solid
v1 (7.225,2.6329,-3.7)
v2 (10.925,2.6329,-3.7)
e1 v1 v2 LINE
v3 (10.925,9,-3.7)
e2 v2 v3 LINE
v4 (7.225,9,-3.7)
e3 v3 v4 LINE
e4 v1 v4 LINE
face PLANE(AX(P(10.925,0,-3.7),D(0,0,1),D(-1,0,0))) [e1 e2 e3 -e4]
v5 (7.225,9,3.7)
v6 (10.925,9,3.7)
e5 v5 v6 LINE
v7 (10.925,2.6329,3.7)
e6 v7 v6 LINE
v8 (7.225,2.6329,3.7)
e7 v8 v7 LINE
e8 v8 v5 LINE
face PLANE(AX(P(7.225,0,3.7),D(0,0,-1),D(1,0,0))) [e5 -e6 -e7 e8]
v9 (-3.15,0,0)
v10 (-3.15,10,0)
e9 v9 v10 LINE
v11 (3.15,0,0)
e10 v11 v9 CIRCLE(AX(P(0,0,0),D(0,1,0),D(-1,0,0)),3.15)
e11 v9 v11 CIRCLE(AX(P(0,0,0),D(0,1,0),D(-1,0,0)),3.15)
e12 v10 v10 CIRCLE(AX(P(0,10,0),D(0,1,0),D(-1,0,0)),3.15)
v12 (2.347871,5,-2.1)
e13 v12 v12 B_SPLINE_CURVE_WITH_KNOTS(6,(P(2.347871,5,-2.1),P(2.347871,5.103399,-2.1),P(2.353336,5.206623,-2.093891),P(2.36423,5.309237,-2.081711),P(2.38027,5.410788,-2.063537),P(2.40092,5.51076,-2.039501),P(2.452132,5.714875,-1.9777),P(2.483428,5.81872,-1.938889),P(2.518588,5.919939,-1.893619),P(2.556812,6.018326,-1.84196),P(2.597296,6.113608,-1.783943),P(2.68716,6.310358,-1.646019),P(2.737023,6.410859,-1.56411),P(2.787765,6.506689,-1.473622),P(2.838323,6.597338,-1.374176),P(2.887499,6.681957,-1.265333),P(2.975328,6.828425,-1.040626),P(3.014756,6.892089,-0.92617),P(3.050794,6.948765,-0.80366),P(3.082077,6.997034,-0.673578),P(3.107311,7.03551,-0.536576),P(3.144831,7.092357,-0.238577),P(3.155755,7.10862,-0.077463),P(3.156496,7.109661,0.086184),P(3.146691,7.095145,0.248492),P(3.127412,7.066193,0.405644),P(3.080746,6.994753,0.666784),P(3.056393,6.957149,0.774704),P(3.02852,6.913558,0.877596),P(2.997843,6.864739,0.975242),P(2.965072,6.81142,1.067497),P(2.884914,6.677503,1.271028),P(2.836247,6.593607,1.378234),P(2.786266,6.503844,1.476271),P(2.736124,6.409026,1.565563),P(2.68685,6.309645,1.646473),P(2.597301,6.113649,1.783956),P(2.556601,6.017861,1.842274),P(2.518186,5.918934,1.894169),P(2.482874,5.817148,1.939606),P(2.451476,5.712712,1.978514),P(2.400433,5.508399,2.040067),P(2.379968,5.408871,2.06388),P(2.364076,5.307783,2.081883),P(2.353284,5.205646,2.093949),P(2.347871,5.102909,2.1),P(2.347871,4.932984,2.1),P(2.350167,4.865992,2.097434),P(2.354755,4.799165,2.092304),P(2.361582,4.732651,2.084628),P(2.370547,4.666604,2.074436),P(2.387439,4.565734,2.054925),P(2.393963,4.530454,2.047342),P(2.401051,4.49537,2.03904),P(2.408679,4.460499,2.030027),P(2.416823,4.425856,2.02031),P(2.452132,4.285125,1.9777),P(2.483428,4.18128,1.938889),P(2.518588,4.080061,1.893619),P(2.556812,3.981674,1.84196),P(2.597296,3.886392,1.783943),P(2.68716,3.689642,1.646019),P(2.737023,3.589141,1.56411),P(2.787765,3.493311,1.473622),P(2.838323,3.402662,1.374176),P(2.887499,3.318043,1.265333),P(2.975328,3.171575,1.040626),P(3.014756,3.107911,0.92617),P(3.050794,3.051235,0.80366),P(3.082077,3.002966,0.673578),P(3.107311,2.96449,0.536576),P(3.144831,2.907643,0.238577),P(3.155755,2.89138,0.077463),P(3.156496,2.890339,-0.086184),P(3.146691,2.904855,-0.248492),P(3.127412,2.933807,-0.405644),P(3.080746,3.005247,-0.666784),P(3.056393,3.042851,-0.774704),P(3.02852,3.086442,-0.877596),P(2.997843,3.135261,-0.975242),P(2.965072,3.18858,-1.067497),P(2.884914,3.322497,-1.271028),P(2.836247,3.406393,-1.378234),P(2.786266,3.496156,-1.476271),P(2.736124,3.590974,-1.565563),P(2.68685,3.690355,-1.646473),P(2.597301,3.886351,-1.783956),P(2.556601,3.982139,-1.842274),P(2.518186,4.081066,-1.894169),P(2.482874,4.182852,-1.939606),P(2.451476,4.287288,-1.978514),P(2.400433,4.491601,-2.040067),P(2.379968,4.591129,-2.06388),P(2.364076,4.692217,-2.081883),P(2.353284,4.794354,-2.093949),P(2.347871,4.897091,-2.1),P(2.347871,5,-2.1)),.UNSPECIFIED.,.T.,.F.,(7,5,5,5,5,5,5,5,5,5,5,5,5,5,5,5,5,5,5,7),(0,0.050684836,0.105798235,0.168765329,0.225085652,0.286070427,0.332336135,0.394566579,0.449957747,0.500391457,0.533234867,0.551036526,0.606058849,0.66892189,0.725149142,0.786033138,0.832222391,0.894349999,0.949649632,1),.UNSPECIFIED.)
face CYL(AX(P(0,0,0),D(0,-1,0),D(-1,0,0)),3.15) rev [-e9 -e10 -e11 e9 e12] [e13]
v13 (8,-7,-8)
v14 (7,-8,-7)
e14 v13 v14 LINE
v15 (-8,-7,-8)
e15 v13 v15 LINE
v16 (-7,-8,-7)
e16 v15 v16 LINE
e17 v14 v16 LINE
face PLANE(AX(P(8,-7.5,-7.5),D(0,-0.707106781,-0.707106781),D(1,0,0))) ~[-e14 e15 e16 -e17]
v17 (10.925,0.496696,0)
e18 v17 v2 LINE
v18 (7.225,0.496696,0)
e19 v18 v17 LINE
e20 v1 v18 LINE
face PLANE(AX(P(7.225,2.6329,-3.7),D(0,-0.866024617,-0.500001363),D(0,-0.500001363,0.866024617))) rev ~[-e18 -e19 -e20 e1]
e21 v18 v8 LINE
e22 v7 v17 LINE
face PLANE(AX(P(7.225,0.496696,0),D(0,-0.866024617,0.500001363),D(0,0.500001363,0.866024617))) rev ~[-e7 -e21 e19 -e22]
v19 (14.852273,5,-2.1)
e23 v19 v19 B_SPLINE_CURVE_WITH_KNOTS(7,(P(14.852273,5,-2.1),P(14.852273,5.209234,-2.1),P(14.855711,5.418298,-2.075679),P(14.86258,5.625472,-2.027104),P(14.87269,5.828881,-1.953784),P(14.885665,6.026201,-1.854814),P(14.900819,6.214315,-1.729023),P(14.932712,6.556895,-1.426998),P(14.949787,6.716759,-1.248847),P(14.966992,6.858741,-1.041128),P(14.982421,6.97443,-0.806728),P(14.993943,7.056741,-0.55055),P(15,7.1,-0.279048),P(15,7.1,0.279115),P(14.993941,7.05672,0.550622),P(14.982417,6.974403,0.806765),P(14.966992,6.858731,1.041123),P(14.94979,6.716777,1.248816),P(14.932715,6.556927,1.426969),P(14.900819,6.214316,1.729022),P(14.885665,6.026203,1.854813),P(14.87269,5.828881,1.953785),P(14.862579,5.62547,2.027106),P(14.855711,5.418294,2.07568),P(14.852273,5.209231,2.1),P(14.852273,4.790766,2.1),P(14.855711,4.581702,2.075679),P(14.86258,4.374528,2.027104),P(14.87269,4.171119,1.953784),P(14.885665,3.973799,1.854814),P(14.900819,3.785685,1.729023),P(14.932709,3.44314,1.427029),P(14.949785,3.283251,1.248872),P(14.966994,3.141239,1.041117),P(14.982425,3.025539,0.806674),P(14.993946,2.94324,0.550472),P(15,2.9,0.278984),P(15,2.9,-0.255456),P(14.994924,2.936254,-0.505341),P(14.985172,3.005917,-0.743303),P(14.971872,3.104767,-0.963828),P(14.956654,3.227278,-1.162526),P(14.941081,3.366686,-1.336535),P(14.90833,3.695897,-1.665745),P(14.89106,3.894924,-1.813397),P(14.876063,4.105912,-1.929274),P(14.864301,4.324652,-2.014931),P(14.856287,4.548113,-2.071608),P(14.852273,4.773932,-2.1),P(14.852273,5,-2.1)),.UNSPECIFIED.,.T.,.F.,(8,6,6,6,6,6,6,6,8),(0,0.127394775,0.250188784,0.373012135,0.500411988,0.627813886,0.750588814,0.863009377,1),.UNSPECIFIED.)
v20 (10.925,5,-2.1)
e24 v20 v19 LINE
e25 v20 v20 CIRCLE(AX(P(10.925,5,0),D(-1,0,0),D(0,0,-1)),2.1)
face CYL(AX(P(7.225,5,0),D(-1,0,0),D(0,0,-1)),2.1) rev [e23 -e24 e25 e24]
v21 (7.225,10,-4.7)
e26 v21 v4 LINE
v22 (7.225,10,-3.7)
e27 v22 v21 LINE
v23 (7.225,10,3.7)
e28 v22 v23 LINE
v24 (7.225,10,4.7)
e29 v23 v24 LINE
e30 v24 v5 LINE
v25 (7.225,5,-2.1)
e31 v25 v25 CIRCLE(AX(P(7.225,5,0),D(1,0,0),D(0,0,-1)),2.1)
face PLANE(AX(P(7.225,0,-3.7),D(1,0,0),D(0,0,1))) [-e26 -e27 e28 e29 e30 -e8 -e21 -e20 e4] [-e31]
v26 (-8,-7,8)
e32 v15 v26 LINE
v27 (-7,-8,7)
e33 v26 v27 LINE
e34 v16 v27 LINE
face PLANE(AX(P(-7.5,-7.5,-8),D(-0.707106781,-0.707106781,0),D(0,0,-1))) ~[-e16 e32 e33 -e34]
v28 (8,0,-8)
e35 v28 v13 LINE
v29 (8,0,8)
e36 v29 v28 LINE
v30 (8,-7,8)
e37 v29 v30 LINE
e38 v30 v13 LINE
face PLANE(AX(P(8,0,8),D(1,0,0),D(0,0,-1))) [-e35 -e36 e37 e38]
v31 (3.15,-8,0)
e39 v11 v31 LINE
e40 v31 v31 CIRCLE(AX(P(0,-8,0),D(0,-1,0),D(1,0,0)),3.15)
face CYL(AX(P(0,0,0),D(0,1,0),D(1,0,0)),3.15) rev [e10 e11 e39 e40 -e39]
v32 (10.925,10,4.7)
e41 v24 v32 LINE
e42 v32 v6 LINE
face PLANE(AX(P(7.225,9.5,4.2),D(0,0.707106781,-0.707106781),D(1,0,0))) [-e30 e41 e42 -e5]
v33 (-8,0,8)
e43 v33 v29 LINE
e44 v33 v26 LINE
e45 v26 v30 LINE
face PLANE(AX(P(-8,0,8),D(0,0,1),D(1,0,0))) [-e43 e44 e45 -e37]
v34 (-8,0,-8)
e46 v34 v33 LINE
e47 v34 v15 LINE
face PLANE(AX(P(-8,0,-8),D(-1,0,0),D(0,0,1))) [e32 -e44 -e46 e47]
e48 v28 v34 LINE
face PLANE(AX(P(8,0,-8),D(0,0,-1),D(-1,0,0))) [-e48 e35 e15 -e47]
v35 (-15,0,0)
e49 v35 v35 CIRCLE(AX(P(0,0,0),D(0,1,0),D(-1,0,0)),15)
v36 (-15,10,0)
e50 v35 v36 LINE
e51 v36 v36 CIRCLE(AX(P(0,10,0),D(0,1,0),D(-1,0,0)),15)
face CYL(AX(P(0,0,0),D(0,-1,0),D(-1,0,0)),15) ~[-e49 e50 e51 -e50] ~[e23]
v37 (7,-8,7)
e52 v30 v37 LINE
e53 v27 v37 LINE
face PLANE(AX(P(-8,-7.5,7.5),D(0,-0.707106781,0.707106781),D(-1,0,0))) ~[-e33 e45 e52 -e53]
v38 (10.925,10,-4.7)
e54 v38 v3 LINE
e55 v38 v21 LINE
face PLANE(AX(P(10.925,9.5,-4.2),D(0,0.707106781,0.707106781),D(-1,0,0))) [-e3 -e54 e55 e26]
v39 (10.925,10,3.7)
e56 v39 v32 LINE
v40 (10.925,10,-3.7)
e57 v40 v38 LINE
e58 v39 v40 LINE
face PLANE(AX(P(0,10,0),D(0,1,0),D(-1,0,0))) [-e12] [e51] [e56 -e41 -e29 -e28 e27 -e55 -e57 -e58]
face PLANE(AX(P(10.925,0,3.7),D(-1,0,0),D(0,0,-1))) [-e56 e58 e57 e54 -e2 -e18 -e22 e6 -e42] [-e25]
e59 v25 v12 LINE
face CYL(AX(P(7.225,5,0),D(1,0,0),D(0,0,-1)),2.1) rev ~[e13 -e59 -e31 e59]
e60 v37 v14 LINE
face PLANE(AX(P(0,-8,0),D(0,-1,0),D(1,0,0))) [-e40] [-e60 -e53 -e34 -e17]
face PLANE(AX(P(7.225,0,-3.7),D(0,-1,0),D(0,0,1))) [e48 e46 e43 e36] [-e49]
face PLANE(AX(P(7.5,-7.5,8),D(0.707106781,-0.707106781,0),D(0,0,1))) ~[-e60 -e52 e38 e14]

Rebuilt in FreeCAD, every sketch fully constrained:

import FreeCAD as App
import Part
import Sketcher
Q = App.Units.Quantity


def edges_at(feature, points):
    """Names of the edges that pass closest to the given points."""
    edges = feature.Shape.Edges
    near = lambda p: min(range(len(edges)), key=lambda i: edges[i].distToShape(Part.Vertex(*p))[0])
    return sorted({f"Edge{near(p) + 1}" for p in points})


def add_polygon(sketch, points):
    """Adds a closed chain of lines whose ends are joined by coincident constraints."""
    first, n = sketch.GeometryCount, len(points)
    for a, b in zip(points, points[1:] + points[:1]):
        sketch.addGeometry(Part.LineSegment(App.Vector(*a, 0), App.Vector(*b, 0)), False)
    for i in range(n):
        sketch.addConstraint(Sketcher.Constraint("Coincident", first + i, 2, first + (i + 1) % n, 1))

doc = App.newDocument("Part")
body = doc.addObject("PartDesign::Body", "Body")

# Sketch on XZ plane
sketch1 = doc.addObject("Sketcher::SketchObject", "Sketch")
body.addObject(sketch1)
sketch1.AttachmentSupport = (doc.XZ_Plane, [""])
sketch1.MapMode = "FlatFace"
sketch1.addGeometry(Part.Circle(App.Vector(0, 0, 0), App.Vector(0, 0, 1), 15), False)  # 0
add_polygon(sketch1, [(10.9, 3.7), (7.2, 3.7), (7.2, -3.7), (10.9, -3.7)])  # lines 1-4
sketch1.addGeometry(Part.Circle(App.Vector(0, 0, 0), App.Vector(0, 0, 1), 3.1), False)  # 5
sketch1.addConstraint(Sketcher.Constraint("Horizontal", 1))
sketch1.addConstraint(Sketcher.Constraint("Vertical", 2))
sketch1.addConstraint(Sketcher.Constraint("Horizontal", 3))
sketch1.addConstraint(Sketcher.Constraint("Vertical", 4))
sketch1.addConstraint(Sketcher.Constraint("Coincident", 0, 3, -1, 1))
sketch1.addConstraint(Sketcher.Constraint("Coincident", 5, 3, -1, 1))
sketch1.addConstraint(Sketcher.Constraint("Diameter", 0, 30.0))
sketch1.addConstraint(Sketcher.Constraint("Diameter", 5, 6.3))
sketch1.addConstraint(Sketcher.Constraint("DistanceX", 1, 2, 1, 1, 3.7))
sketch1.addConstraint(Sketcher.Constraint("DistanceY", 2, 2, 2, 1, 7.4))
sketch1.addConstraint(Sketcher.Constraint("DistanceY", -1, 1, 1, 2, 3.7))
sketch1.addConstraint(Sketcher.Constraint("DistanceX", -1, 1, 1, 2, 7.225))
pad1 = doc.addObject("PartDesign::Pad", "Pad")
body.addObject(pad1)
pad1.Profile = sketch1
pad1.Length = 10
pad1.Reversed = True

# Sketch on YZ plane
sketch2 = doc.addObject("Sketcher::SketchObject", "Sketch001")
body.addObject(sketch2)
sketch2.AttachmentSupport = (doc.YZ_Plane, [""])
sketch2.MapMode = "FlatFace"
sketch2.AttachmentOffset = App.Placement(App.Vector(0, 0, 7.225), App.Rotation())
sketch2.addGeometry(Part.Circle(App.Vector(5, 0, 0), App.Vector(0, 0, 1), 2.1), False)
sketch2.addConstraint(Sketcher.Constraint("PointOnObject", 0, 3, -1))
sketch2.addConstraint(Sketcher.Constraint("Diameter", 0, 4.2))
sketch2.addConstraint(Sketcher.Constraint("DistanceX", -1, 1, 0, 3, 5.0))
pocket1 = doc.addObject("PartDesign::Pocket", "Pocket")
body.addObject(pocket1)
pocket1.Profile = sketch2
pocket1.Length = 16
pocket1.Midplane = True

# Sketch on YZ plane
sketch3 = doc.addObject("Sketcher::SketchObject", "Sketch002")
body.addObject(sketch3)
sketch3.AttachmentSupport = (doc.YZ_Plane, [""])
sketch3.MapMode = "FlatFace"
sketch3.AttachmentOffset = App.Placement(App.Vector(0, 0, 7.225), App.Rotation())
add_polygon(sketch3, [(0, -3.7), (2.6, -3.7), (0.5, 0), (2.6, 3.7), (0, 3.7)])  # lines 0-4
sketch3.addConstraint(Sketcher.Constraint("Horizontal", 0))
sketch3.addConstraint(Sketcher.Constraint("Horizontal", 3))
sketch3.addConstraint(Sketcher.Constraint("Vertical", 4))
sketch3.addConstraint(Sketcher.Constraint("Symmetric", 3, 2, 4, 2, -1, 1))
sketch3.addConstraint(Sketcher.Constraint("PointOnObject", 1, 2, -1))
sketch3.addConstraint(Sketcher.Constraint("Vertical", 0, 2, 2, 2))
sketch3.addConstraint(Sketcher.Constraint("Angle", 1, Q("120 deg")))
sketch3.addConstraint(Sketcher.Constraint("DistanceY", 4, 2, 4, 1, 7.4))
sketch3.addConstraint(Sketcher.Constraint("DistanceX", 0, 1, 0, 2, 2.633))
pad2 = doc.addObject("PartDesign::Pad", "Pad001")
body.addObject(pad2)
pad2.Profile = sketch3
pad2.Type = "UpToFirst"

# Sketch on XZ plane
sketch4 = doc.addObject("Sketcher::SketchObject", "Sketch003")
body.addObject(sketch4)
sketch4.AttachmentSupport = (doc.XZ_Plane, [""])
sketch4.MapMode = "FlatFace"
add_polygon(sketch4, [(8, 8), (-8, 8), (-8, -8), (8, -8)])  # lines 0-3
sketch4.addGeometry(Part.Circle(App.Vector(0, 0, 0), App.Vector(0, 0, 1), 3.1), False)  # 4
sketch4.addConstraint(Sketcher.Constraint("Horizontal", 0))
sketch4.addConstraint(Sketcher.Constraint("Vertical", 1))
sketch4.addConstraint(Sketcher.Constraint("Horizontal", 2))
sketch4.addConstraint(Sketcher.Constraint("Vertical", 3))
sketch4.addConstraint(Sketcher.Constraint("Coincident", 4, 3, -1, 1))
sketch4.addConstraint(Sketcher.Constraint("Symmetric", 0, 2, 2, 2, -1, 1))
sketch4.addConstraint(Sketcher.Constraint("Equal", 2, 1))
sketch4.addConstraint(Sketcher.Constraint("DistanceX", 0, 2, 0, 1, 16.0))
sketch4.addConstraint(Sketcher.Constraint("Diameter", 4, 6.3))
pad3 = doc.addObject("PartDesign::Pad", "Pad002")
body.addObject(pad3)
pad3.Profile = sketch4
pad3.Length = 8
doc.recompute()

chamfer = doc.addObject("PartDesign::Chamfer", "Chamfer")
body.addObject(chamfer)
chamfer.Base = (pad3, edges_at(pad3, [(9.075, 10, 3.7), (9.075, 10, -3.7)]))
chamfer.Size = 1
doc.recompute()

chamfer2 = doc.addObject("PartDesign::Chamfer", "Chamfer001")
body.addObject(chamfer2)
chamfer2.Base = (chamfer, edges_at(chamfer, [
    (0, -8, 8),
    (-8, -8, 0),
    (0, -8, -8),
    (8, -8, 0),
]))
chamfer2.Size = 1

doc.recompute()
